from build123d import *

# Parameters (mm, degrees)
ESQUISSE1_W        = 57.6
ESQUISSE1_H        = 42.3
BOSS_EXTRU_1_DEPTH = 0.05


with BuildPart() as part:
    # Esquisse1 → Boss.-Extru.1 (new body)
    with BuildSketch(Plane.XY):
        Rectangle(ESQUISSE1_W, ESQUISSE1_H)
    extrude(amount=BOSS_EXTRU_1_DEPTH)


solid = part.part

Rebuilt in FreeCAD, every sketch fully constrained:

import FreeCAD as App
import Part
import Sketcher

V = App.Vector
Q = App.Units.Quantity


def add_polygon(sketch, points):
    """Adds a closed chain of lines whose ends are joined by coincident constraints."""
    first, n = sketch.GeometryCount, len(points)
    for a, b in zip(points, points[1:] + points[:1]):
        sketch.addGeometry(Part.LineSegment(App.Vector(*a, 0), App.Vector(*b, 0)), False)
    for i in range(n):
        sketch.addConstraint(Sketcher.Constraint("Coincident", first + i, 2, first + (i + 1) % n, 1))

doc = App.newDocument("Part")
body = doc.addObject("PartDesign::Body", "Body")

sketch1 = body.newObject("Sketcher::SketchObject", "Sketch")
sketch1.AttachmentSupport = (doc.getObject("XY_Plane"), [""])
sketch1.MapMode = "FlatFace"
add_polygon(sketch1, [(-29, 21), (-29, -21), (29, -21), (29, 21)])
sketch1.addConstraint([
    Sketcher.Constraint("Vertical", 0),
    Sketcher.Constraint("Horizontal", 1),
    Sketcher.Constraint("Vertical", 2),
    Sketcher.Constraint("Horizontal", 3),
    Sketcher.Constraint("Symmetric", 0, 2, 2, 2, -1, 1),
    Sketcher.Constraint("DistanceX", 1, 1, 1, 2, Q("57.6 mm")),
    Sketcher.Constraint("DistanceY", 0, 2, 0, 1, Q("42.3 mm")),
])
pad1 = body.newObject("PartDesign::Pad", "Pad")
pad1.Profile = sketch1
pad1.Length = 0.05

doc.recompute()
